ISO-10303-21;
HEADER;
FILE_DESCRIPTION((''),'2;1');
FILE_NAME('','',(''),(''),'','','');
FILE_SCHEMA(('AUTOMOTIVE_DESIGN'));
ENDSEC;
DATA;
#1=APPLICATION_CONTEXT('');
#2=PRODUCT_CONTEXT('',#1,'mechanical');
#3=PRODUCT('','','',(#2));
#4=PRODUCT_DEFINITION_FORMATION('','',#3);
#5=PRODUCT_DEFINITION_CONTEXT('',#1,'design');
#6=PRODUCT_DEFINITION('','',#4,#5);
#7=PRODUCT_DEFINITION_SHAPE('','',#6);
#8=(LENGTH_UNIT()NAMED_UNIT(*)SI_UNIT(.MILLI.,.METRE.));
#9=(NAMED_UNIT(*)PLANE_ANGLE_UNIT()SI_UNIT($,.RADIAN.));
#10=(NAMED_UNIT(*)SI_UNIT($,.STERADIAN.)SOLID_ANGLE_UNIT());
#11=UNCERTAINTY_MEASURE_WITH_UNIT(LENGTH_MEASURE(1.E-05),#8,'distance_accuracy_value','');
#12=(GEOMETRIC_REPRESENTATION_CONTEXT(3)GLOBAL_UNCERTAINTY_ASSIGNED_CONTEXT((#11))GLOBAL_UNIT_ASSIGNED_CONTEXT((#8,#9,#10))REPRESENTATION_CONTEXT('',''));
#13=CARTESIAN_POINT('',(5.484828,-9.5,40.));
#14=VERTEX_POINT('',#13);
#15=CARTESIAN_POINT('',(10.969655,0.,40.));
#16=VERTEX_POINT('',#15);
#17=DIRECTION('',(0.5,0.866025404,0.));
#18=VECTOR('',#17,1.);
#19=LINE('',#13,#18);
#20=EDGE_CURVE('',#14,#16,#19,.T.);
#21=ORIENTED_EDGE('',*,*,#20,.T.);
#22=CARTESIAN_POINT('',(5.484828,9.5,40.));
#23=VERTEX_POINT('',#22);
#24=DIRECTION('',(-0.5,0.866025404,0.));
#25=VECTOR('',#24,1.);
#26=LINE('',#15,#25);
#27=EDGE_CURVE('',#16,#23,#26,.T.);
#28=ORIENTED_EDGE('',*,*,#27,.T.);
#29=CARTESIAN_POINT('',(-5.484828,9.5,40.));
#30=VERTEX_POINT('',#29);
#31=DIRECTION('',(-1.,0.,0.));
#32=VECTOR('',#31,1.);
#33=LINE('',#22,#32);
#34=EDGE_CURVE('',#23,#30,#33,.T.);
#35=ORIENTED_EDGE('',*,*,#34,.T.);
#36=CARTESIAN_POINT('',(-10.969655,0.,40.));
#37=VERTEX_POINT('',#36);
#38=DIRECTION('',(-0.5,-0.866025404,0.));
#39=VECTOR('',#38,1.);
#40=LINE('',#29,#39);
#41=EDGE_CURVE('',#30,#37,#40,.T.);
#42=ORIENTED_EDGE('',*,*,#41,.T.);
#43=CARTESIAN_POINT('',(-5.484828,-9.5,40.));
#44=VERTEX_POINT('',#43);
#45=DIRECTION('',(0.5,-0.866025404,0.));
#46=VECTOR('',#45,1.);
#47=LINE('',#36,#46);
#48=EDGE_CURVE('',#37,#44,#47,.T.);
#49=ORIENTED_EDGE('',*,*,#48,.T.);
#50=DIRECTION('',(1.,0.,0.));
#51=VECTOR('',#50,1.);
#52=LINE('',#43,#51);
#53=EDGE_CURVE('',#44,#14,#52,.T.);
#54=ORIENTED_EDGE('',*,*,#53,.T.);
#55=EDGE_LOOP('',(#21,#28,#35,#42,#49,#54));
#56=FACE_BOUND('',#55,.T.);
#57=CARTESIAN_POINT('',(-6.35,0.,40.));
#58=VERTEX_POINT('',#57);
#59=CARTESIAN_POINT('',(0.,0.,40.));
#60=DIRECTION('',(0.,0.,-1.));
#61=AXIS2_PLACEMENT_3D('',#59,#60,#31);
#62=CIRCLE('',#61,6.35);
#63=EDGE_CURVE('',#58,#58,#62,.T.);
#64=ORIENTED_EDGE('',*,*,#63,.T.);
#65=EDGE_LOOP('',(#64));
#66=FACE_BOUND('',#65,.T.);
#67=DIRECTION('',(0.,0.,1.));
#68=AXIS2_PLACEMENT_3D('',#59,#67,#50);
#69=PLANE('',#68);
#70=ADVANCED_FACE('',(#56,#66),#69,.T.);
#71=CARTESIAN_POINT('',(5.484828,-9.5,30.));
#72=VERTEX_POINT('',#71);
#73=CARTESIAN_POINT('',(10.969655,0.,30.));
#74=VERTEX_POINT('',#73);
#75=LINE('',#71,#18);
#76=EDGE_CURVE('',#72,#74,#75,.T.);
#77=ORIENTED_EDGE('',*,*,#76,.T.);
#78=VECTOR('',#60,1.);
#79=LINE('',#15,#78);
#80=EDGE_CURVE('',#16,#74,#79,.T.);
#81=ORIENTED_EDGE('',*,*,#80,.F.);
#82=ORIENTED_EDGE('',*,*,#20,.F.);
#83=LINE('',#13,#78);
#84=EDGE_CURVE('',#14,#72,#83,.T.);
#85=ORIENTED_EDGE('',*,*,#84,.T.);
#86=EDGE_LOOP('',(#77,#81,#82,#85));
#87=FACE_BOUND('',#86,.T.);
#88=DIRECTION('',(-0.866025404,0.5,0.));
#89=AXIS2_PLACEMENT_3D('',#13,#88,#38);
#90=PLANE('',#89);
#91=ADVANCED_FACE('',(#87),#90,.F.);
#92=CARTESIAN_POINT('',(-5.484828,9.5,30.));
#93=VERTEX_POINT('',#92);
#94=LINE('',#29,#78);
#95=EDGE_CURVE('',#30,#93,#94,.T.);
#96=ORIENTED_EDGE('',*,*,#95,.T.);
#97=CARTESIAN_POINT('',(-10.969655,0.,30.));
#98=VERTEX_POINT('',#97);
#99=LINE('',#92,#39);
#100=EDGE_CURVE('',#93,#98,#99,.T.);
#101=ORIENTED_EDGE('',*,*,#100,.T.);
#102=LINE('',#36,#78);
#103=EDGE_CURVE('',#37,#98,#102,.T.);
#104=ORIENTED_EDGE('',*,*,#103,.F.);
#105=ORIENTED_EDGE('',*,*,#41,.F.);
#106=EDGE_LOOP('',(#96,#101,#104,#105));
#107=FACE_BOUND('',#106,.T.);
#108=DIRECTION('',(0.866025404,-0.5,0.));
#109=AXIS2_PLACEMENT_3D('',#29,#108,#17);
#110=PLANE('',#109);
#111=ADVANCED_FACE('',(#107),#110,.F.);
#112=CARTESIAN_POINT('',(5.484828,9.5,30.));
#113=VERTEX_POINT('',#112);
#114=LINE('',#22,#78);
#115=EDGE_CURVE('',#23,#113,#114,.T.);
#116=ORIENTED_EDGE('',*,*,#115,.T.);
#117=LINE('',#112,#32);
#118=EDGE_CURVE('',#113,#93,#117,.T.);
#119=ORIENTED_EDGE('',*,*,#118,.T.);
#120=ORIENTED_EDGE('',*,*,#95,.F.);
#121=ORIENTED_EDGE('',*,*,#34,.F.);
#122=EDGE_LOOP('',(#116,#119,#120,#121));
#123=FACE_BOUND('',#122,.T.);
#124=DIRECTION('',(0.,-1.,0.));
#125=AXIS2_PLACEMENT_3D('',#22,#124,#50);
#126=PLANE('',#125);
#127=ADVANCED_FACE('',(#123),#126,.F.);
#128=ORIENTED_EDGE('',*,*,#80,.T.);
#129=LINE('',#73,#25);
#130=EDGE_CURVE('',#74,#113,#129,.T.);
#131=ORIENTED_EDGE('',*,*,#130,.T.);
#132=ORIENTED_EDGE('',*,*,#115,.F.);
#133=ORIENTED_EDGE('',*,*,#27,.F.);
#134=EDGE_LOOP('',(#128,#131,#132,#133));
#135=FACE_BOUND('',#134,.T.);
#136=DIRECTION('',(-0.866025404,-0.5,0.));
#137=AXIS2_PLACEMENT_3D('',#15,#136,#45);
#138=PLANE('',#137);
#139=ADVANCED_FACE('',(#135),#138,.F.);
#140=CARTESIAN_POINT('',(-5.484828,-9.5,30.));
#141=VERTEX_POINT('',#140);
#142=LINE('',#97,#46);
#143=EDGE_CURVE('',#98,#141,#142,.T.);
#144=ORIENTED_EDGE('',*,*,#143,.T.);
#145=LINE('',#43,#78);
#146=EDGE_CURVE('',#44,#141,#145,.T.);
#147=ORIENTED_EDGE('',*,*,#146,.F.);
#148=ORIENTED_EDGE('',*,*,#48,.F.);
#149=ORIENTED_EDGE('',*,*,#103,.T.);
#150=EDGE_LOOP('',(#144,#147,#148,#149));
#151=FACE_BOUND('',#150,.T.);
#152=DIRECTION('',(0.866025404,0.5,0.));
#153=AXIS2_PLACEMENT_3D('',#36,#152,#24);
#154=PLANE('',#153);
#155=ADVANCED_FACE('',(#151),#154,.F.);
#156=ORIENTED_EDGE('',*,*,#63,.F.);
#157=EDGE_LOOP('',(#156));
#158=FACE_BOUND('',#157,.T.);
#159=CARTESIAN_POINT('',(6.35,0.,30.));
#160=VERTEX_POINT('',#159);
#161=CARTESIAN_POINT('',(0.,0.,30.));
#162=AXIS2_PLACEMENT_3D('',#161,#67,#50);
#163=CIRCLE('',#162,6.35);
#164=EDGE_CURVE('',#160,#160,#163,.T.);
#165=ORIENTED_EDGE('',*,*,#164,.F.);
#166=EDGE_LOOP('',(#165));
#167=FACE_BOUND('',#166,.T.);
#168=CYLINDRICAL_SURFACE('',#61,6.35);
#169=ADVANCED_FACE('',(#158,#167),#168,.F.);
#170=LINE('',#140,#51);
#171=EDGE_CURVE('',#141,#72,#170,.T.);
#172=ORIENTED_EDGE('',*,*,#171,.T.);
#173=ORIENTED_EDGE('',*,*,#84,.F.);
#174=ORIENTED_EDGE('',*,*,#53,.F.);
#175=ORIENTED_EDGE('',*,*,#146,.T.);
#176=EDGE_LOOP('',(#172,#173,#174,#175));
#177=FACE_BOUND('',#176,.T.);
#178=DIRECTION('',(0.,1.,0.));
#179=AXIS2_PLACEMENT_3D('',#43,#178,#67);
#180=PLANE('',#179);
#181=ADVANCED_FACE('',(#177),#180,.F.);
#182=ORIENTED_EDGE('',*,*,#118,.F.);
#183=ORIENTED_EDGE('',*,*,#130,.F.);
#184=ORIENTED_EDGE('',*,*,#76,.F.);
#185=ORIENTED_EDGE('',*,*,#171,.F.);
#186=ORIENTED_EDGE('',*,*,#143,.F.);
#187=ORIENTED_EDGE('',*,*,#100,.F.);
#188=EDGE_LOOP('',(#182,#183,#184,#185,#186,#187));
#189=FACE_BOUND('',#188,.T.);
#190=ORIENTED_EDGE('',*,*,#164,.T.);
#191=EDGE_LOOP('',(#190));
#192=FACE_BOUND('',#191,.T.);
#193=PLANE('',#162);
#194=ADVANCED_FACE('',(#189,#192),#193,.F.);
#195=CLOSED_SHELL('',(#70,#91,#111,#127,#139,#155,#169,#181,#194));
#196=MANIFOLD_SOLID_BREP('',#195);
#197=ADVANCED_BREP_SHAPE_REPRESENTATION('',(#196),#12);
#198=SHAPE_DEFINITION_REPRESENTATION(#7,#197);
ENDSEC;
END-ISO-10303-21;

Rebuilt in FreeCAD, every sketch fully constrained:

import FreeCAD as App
import Part
import Sketcher
Q = App.Units.Quantity

doc = App.newDocument("Part")
params = doc.addObject("Spreadsheet::Sheet", "Params")
for row, (alias, value) in enumerate([
    ("sketch1_diameter", "12.7 mm"),
    ("pad1_length", "30 mm"),
    ("pad2_length", "10 mm"),
    ("sketch3_diameter", "12.7 mm"),
], start=1):
    params.set(f"A{row}", alias)
    params.set(f"B{row}", "=" + value)
    params.setAlias(f"B{row}", alias)

body = doc.addObject("PartDesign::Body", "Body")

# Sketch on XY plane
sketch1 = doc.addObject("Sketcher::SketchObject", "Sketch")
body.addObject(sketch1)
sketch1.AttachmentSupport = (doc.XY_Plane, [""])
sketch1.MapMode = "FlatFace"
sketch1.addGeometry(Part.Circle(App.Vector(0, 0, 0), App.Vector(0, 0, 1), 6), False)
sketch1.addConstraint([
    Sketcher.Constraint("Coincident", 0, 3, -1, 1),
    Sketcher.Constraint("Diameter", 0, 12.7),
])
sketch1.setExpression("Constraints[1]", "Params.sketch1_diameter")
pad1 = doc.addObject("PartDesign::Pad", "Pad")
body.addObject(pad1)
pad1.Profile = sketch1
pad1.setExpression("Length", "Params.pad1_length")

# Sketch on XY plane
sketch2 = doc.addObject("Sketcher::SketchObject", "Sketch001")
body.addObject(sketch2)
sketch2.AttachmentSupport = (doc.XY_Plane, [""])
sketch2.MapMode = "FlatFace"
sketch2.AttachmentOffset = App.Placement(App.Vector(0, 0, 30), App.Rotation())
sketch2.addGeometry([
    Part.LineSegment(App.Vector(11, 0, 0), App.Vector(5, 10, 0)),  # 0
    Part.LineSegment(App.Vector(5, 10, 0), App.Vector(-5, 10, 0)),  # 1
    Part.LineSegment(App.Vector(-5, 10, 0), App.Vector(-11, 0, 0)),  # 2
    Part.LineSegment(App.Vector(-11, 0, 0), App.Vector(-5, -10, 0)),  # 3
    Part.LineSegment(App.Vector(-5, -10, 0), App.Vector(5, -10, 0)),  # 4
    Part.LineSegment(App.Vector(5, -10, 0), App.Vector(11, 0, 0)),  # 5
], False)
sketch2.addConstraint([
    Sketcher.Constraint("Coincident", 0, 2, 1, 1),
    Sketcher.Constraint("Coincident", 1, 2, 2, 1),
    Sketcher.Constraint("Coincident", 2, 2, 3, 1),
    Sketcher.Constraint("Coincident", 3, 2, 4, 1),
    Sketcher.Constraint("Coincident", 4, 2, 5, 1),
    Sketcher.Constraint("Coincident", 5, 2, 0, 1),
    Sketcher.Constraint("Horizontal", 1),
    Sketcher.Constraint("Horizontal", 4),
    Sketcher.Constraint("Symmetric", 0, 2, 3, 2, -1, 1),
    Sketcher.Constraint("Symmetric", 2, 2, 5, 2, -1, 1),
    Sketcher.Constraint("PointOnObject", 2, 2, -1),
    Sketcher.Constraint("Parallel", 2, 5),
    Sketcher.Constraint("Vertical", 1, 2, 3, 2),
    Sketcher.Constraint("Angle", 0, Q("120 deg")),
    Sketcher.Constraint("DistanceY", 3, 2, 1, 2, 19.0),
    Sketcher.Constraint("DistanceX", 1, 2, 1, 1, 10.969655),
])
pad2 = doc.addObject("PartDesign::Pad", "Pad001")
body.addObject(pad2)
pad2.Profile = sketch2
pad2.setExpression("Length", "Params.pad2_length")

# Sketch on XY plane
sketch3 = doc.addObject("Sketcher::SketchObject", "Sketch002")
body.addObject(sketch3)
sketch3.AttachmentSupport = (doc.XY_Plane, [""])
sketch3.MapMode = "FlatFace"
sketch3.addGeometry(Part.Circle(App.Vector(0, 0, 0), App.Vector(0, 0, 1), 6), False)
sketch3.addConstraint([
    Sketcher.Constraint("Coincident", 0, 3, -1, 1),
    Sketcher.Constraint("Diameter", 0, 12.7),
])
sketch3.setExpression("Constraints[1]", "Params.sketch3_diameter")
pocket1 = doc.addObject("PartDesign::Pocket", "Pocket")
body.addObject(pocket1)
pocket1.Profile = sketch3
pocket1.Type = "ThroughAll"
pocket1.Reversed = True

doc.recompute()
